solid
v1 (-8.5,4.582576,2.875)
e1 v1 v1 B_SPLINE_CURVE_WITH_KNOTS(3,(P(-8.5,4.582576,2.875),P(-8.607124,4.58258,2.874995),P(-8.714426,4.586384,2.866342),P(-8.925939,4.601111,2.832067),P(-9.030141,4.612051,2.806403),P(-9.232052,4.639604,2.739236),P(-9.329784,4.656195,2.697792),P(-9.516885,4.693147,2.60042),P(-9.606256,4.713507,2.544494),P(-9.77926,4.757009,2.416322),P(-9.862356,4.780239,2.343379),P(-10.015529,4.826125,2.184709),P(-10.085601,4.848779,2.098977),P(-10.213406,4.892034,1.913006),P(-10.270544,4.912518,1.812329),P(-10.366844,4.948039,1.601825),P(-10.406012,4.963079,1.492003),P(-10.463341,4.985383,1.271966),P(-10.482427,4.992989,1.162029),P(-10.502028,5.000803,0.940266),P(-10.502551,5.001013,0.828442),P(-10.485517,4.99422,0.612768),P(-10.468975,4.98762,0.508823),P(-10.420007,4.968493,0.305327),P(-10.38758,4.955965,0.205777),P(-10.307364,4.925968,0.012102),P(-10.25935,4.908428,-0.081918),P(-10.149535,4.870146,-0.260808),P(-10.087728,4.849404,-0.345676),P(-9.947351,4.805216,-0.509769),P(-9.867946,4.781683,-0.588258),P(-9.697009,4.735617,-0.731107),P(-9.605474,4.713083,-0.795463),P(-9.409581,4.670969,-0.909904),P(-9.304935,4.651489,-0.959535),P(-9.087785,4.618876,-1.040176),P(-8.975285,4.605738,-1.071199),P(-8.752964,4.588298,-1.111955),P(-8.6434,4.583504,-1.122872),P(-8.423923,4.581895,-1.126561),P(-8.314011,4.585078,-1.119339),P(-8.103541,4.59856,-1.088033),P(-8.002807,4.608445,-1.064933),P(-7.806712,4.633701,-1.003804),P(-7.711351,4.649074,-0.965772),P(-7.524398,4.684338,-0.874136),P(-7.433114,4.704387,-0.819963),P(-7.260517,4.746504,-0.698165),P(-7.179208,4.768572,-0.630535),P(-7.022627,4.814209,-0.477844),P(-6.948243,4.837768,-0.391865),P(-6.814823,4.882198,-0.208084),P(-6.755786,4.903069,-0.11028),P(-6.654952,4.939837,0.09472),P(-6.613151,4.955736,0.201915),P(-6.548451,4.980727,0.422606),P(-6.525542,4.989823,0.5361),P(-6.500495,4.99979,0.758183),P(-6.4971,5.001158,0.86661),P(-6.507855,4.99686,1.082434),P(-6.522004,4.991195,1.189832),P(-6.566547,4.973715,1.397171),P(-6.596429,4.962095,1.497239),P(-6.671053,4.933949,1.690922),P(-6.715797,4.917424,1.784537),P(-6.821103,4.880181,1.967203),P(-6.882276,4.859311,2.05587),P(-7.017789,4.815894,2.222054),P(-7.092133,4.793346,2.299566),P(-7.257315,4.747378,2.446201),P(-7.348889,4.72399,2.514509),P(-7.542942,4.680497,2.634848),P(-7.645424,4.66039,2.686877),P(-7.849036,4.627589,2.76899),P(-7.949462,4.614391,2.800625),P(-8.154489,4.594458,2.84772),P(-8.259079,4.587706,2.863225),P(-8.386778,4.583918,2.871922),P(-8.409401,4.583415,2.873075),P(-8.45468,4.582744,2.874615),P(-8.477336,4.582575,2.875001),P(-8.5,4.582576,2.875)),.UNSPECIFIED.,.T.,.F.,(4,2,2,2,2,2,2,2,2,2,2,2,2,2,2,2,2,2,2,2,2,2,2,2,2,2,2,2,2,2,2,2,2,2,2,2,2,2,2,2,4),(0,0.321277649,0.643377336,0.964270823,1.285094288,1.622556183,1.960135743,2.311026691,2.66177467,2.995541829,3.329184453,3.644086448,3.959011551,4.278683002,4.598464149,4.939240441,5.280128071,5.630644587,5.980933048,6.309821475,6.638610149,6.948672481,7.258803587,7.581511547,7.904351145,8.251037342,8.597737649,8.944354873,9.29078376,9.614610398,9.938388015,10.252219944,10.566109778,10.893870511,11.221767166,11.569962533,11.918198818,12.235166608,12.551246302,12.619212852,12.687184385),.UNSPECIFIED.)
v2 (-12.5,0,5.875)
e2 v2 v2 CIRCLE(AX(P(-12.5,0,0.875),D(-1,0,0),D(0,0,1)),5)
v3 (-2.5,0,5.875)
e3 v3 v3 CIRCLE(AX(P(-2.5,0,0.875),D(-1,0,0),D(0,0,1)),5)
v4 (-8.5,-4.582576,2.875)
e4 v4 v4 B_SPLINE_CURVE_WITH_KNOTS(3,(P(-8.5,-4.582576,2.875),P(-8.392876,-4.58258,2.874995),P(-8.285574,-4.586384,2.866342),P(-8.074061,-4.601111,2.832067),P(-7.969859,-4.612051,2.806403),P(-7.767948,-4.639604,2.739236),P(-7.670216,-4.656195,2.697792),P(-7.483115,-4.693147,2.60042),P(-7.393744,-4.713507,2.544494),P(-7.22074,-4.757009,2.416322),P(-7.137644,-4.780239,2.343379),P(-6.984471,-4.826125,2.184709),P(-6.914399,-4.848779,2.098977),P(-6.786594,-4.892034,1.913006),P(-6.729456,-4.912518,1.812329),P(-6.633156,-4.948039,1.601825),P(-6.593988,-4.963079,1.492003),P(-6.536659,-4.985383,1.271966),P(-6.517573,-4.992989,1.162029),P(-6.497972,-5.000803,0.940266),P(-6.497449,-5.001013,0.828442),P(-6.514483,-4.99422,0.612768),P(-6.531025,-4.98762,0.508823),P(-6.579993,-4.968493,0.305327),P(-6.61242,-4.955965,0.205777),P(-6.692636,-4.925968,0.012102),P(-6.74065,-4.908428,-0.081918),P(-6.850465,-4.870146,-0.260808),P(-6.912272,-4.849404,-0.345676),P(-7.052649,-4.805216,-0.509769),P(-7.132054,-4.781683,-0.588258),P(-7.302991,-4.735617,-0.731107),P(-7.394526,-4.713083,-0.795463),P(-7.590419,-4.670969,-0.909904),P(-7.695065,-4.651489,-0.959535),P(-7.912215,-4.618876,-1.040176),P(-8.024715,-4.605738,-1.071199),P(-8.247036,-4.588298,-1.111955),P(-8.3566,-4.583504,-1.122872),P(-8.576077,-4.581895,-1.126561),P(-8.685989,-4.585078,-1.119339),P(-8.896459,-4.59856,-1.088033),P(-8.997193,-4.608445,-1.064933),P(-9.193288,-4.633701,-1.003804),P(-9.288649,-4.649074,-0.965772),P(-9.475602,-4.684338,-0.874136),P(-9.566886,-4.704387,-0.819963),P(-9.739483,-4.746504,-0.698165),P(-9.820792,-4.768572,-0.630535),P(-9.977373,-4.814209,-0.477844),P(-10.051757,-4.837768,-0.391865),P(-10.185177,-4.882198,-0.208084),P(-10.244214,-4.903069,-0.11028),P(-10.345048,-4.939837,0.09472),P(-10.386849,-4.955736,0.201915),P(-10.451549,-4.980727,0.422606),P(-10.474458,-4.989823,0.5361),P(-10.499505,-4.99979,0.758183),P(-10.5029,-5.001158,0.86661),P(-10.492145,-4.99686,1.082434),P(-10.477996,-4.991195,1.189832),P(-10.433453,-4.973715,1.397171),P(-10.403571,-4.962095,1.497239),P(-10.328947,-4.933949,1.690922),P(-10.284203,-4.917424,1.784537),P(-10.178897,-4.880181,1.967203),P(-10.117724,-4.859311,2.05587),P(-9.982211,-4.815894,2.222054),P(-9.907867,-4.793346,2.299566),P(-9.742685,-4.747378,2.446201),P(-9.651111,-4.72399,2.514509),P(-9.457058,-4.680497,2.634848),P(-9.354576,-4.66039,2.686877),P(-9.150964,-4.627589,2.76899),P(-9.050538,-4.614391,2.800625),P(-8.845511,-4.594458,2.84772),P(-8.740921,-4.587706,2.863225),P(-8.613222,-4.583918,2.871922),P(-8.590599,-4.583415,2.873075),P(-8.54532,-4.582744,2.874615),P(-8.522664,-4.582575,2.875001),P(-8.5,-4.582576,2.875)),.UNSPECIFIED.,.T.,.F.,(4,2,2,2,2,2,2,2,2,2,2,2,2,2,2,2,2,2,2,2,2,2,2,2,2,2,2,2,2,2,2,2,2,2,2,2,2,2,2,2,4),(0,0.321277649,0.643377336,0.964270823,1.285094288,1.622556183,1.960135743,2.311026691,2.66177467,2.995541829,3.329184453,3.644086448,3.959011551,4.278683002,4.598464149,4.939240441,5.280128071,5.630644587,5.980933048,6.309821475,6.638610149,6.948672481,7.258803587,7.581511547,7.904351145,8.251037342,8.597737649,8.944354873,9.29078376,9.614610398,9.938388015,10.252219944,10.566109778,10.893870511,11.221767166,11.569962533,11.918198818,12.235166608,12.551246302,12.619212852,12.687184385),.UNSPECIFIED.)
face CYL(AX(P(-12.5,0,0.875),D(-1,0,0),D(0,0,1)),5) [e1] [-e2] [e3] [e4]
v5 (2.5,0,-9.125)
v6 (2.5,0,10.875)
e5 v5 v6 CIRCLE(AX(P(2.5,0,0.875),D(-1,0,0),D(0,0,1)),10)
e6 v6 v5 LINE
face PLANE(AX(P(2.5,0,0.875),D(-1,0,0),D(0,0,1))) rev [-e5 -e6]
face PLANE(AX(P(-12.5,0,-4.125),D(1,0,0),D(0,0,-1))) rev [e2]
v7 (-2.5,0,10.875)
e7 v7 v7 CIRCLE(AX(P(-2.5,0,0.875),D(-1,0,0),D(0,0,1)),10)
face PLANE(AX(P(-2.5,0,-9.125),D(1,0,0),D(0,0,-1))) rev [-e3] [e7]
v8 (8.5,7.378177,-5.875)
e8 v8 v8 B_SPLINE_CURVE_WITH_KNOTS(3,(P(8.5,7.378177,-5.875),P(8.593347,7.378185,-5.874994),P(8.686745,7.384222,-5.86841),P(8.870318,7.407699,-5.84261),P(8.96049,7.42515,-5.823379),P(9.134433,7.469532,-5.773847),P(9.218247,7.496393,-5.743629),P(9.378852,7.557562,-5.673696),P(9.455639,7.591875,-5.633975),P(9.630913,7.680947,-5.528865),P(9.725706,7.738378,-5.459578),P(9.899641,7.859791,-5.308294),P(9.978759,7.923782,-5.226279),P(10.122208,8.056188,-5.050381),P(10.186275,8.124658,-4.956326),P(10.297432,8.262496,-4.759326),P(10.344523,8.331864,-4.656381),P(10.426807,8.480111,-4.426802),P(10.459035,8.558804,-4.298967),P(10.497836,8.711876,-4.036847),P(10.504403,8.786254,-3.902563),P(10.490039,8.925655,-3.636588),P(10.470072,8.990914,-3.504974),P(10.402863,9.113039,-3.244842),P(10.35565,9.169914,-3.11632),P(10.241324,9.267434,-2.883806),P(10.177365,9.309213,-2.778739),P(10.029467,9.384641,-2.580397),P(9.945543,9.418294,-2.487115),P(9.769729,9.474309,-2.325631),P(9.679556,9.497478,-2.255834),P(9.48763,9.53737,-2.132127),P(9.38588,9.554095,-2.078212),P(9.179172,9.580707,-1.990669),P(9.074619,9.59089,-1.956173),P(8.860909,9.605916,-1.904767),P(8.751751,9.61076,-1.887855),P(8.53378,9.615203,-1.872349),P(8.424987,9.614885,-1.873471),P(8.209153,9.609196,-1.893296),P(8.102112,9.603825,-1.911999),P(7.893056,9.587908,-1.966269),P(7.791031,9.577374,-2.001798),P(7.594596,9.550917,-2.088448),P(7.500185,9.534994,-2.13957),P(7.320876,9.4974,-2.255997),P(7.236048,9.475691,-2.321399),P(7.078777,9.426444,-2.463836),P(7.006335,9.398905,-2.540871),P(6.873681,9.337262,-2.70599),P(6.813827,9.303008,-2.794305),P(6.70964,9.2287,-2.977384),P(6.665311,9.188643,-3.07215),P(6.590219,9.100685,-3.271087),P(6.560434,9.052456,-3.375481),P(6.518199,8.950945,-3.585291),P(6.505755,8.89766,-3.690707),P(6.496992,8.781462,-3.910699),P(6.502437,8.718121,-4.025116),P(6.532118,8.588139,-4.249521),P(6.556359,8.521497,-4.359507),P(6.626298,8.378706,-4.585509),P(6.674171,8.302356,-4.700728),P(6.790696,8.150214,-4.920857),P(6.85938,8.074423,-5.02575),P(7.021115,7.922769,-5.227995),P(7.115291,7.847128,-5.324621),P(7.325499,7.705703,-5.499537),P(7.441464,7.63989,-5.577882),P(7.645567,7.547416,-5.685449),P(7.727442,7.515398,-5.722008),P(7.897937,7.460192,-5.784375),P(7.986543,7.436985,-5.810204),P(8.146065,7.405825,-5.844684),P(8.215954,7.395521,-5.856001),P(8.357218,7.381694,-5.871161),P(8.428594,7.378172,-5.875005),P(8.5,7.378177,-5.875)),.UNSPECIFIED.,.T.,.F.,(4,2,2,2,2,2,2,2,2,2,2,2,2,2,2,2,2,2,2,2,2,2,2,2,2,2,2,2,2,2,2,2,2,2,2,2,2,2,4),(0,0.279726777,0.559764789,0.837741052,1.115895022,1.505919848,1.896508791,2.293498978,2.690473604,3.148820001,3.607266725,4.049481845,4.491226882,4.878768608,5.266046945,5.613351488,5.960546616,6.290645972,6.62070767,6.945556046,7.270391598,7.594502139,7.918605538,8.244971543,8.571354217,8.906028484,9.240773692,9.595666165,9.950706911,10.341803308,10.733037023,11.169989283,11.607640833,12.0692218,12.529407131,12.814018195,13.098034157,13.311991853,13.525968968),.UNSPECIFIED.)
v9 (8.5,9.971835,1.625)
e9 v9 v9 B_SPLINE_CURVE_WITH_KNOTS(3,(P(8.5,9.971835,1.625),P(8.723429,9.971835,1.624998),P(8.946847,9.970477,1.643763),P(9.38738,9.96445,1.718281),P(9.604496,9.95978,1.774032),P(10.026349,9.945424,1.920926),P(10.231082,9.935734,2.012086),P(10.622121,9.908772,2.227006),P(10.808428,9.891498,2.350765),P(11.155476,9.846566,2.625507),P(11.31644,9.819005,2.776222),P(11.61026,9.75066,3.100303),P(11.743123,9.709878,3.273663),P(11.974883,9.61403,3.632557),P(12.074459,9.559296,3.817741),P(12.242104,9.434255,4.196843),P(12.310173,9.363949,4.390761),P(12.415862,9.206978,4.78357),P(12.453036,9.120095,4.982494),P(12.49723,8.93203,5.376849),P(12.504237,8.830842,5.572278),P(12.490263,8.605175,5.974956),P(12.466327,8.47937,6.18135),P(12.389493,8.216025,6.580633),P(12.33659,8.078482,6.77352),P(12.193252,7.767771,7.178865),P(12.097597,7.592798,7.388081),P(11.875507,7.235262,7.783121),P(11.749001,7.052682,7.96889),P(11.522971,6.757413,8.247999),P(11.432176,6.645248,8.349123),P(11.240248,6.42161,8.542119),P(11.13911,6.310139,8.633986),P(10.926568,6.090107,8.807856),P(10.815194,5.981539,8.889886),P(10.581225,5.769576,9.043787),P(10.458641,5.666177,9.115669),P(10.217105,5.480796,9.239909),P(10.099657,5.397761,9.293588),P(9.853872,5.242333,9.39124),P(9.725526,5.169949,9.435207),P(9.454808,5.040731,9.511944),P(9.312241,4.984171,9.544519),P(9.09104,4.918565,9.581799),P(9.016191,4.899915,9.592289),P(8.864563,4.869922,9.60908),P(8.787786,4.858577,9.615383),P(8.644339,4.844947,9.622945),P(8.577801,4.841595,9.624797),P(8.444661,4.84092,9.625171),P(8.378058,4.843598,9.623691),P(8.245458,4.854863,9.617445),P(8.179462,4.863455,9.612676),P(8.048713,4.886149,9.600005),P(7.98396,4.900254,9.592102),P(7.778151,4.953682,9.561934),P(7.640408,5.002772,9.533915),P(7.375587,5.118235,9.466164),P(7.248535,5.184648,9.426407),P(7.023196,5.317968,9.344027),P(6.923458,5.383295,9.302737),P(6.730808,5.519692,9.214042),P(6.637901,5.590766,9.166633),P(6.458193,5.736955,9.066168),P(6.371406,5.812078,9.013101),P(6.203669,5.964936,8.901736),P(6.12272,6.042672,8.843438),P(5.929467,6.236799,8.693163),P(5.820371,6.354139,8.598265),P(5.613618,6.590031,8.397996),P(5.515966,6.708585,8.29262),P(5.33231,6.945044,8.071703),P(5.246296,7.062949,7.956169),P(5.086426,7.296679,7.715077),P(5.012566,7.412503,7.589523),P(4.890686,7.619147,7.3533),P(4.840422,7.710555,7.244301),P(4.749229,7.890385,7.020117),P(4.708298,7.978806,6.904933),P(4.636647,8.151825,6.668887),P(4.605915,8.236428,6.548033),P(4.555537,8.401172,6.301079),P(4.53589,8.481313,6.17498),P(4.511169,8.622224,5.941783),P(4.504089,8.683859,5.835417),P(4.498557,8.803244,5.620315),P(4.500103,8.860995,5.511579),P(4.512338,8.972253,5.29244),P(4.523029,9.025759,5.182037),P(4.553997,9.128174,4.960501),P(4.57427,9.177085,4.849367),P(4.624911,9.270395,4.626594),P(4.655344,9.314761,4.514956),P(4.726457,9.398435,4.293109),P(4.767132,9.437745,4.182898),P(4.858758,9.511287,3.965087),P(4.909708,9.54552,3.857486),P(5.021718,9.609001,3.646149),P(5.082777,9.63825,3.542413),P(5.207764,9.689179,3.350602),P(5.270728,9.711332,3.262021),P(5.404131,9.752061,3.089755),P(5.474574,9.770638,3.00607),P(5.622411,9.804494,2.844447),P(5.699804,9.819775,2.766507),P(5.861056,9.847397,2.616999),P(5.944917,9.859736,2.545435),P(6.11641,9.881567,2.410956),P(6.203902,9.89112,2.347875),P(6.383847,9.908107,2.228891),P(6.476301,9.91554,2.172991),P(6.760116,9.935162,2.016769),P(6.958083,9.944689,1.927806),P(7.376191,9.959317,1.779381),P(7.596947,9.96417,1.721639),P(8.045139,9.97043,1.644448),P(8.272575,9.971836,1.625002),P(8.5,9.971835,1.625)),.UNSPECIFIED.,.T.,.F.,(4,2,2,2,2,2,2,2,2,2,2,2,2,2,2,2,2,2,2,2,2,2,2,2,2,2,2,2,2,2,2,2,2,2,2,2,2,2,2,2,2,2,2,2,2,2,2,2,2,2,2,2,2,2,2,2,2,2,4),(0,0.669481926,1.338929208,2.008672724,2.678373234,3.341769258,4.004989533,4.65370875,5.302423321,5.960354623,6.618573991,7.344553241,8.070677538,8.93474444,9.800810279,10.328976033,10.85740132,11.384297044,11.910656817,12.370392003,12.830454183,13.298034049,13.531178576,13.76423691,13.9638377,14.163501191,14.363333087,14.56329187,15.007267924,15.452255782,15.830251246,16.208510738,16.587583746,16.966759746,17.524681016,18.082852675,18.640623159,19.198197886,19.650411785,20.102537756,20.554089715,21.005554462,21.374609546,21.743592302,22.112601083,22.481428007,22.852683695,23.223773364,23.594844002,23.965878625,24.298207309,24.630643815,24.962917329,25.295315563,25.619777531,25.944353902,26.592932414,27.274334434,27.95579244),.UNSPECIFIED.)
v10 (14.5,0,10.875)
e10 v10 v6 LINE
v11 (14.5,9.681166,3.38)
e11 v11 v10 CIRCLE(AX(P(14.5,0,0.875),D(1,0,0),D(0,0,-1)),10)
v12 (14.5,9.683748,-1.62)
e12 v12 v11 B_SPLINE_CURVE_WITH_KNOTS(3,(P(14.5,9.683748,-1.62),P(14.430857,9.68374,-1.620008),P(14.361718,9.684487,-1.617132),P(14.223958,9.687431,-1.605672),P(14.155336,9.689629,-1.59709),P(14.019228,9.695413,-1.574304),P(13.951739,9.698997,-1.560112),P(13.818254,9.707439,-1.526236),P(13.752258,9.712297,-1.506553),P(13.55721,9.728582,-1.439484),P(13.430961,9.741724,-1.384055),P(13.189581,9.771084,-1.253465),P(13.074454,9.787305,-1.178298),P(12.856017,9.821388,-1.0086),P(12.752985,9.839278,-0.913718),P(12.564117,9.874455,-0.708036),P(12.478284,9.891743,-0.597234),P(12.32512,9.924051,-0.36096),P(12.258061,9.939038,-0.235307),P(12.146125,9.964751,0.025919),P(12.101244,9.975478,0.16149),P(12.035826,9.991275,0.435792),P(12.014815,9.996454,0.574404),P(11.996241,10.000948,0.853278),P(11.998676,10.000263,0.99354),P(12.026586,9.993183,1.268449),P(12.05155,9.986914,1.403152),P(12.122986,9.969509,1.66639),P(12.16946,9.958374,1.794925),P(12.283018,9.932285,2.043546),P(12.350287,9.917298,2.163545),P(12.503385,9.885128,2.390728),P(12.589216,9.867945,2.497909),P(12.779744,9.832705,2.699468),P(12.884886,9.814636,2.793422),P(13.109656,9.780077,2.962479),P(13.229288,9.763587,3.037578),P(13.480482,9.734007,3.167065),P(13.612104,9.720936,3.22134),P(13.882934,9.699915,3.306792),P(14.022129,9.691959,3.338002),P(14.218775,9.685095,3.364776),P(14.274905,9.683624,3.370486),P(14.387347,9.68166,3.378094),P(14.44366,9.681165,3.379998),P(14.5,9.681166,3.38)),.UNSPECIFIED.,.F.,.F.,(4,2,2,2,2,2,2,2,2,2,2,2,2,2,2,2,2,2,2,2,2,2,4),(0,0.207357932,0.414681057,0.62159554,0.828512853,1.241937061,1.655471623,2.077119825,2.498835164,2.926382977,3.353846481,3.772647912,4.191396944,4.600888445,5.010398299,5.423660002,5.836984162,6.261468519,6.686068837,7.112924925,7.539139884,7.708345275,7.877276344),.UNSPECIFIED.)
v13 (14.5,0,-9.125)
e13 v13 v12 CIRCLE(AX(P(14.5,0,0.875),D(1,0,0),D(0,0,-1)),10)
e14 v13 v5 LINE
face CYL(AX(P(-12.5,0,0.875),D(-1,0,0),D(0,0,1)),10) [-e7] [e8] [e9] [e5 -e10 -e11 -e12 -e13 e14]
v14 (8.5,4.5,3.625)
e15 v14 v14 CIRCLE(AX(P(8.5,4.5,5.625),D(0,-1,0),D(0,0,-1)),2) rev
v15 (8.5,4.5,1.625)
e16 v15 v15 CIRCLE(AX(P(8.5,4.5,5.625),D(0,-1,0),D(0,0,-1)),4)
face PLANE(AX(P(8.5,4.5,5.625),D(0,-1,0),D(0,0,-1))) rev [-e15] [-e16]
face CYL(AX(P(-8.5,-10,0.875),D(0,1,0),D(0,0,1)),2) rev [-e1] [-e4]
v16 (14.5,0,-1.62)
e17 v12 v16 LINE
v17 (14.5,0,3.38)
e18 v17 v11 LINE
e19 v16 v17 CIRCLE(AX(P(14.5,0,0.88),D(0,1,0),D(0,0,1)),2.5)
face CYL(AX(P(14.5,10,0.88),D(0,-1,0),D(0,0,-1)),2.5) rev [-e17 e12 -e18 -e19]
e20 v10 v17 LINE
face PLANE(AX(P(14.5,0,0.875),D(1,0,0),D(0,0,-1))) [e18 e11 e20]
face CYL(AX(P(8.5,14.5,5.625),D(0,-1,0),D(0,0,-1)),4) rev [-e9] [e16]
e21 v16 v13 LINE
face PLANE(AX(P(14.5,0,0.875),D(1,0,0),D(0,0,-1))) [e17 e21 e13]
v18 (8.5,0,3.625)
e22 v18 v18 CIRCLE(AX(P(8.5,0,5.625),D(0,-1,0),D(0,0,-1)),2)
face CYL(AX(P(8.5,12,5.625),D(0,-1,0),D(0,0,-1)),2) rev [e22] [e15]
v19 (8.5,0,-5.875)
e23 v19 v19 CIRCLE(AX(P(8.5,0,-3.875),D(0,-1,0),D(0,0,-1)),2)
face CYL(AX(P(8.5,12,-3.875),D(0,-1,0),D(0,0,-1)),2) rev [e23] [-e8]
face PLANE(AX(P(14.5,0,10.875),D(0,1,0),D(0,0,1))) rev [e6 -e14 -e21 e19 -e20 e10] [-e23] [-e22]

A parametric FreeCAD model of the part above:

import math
import FreeCAD as App
import Part
import Sketcher
from FreeCAD import Vector

doc = App.newDocument("Part")
body = doc.addObject("PartDesign::Body", "Body")

# Sketch on XZ plane
sketch1 = body.newObject("Sketcher::SketchObject", "Sketch")
sketch1.AttachmentSupport = (doc.getObject("XZ_Plane"), [""])
sketch1.MapMode = "FlatFace"
sketch1.addGeometry([
    Part.LineSegment(Vector(2, 1, 0), Vector(2, -9, 0)),  # 0
    Part.LineSegment(Vector(2, -9, 0), Vector(-2, -9, 0)),  # 1
    Part.LineSegment(Vector(-2, -9, 0), Vector(-2, -4, 0)),  # 2
    Part.LineSegment(Vector(-2, -4, 0), Vector(-12, -4, 0)),  # 3
    Part.LineSegment(Vector(-12, -4, 0), Vector(-12, 1, 0)),  # 4
    Part.LineSegment(Vector(-12, 1, 0), Vector(2, 1, 0)),  # 5
], False)
sketch1.addGeometry(Part.LineSegment(Vector(-12, 1, 0), Vector(2, 1, 0)), True)  # axis
sketch1.addConstraint([
    Sketcher.Constraint("Coincident", 0, 2, 1, 1),
    Sketcher.Constraint("Coincident", 1, 2, 2, 1),
    Sketcher.Constraint("Coincident", 2, 2, 3, 1),
    Sketcher.Constraint("Coincident", 3, 2, 4, 1),
    Sketcher.Constraint("Coincident", 4, 2, 5, 1),
    Sketcher.Constraint("Coincident", 5, 2, 0, 1),
    Sketcher.Constraint("Vertical", 0),
    Sketcher.Constraint("Horizontal", 1),
    Sketcher.Constraint("Vertical", 2),
    Sketcher.Constraint("Horizontal", 3),
    Sketcher.Constraint("Vertical", 4),
    Sketcher.Constraint("Horizontal", 5),
    Sketcher.Constraint("Horizontal", 6),
    Sketcher.Constraint("Coincident", 6, 1, 4, 2),
    Sketcher.Constraint("Vertical", 0, 2, 6, 2),
    Sketcher.Constraint("Equal", 3, 0),
    Sketcher.Constraint("Equal", 1, 2),
    Sketcher.Constraint("Equal", 2, 4),
    Sketcher.Constraint("DistanceX", 1, 2, 1, 1, 5.0),
    Sketcher.Constraint("DistanceX", -1, 1, 0, 2, 2.5),
    Sketcher.Constraint("DistanceY", 0, 2, -1, 1, 9.125),
])
revolution = body.newObject("PartDesign::Revolution", "Revolution")
revolution.Profile = sketch1
revolution.ReferenceAxis = (sketch1, ["Axis0"])
revolution.Angle = 360

# Sketch on YZ plane
sketch2 = body.newObject("Sketcher::SketchObject", "Sketch001")
sketch2.AttachmentSupport = (doc.getObject("YZ_Plane"), [""])
sketch2.MapMode = "FlatFace"
sketch2.AttachmentOffset = App.Placement(Vector(0, 0, 2.5), App.Rotation())
sketch2.addGeometry([
    Part.LineSegment(Vector(0, 11, 0), Vector(0, -9, 0)),
    Part.ArcOfCircle(Part.Circle(Vector(0, 1, 0), Vector(0, 0, 1), 10), math.radians(-90), math.radians(90)),
], False)
sketch2.addConstraint([
    Sketcher.Constraint("Coincident", 0, 1, 1, 2),
    Sketcher.Constraint("Coincident", 1, 1, 0, 2),
    Sketcher.Constraint("Vertical", 0),
    Sketcher.Constraint("PointOnObject", 1, 3, -2),
    Sketcher.Constraint("PointOnObject", 0, 1, -2),
    Sketcher.Constraint("Radius", 1, 10.0),
    Sketcher.Constraint("DistanceY", -1, 1, 1, 3, 0.875),
])
pad1 = body.newObject("PartDesign::Pad", "Pad")
pad1.Profile = sketch2
pad1.Length = 12

# Sketch on XZ plane
sketch3 = body.newObject("Sketcher::SketchObject", "Sketch002")
sketch3.AttachmentSupport = (doc.getObject("XZ_Plane"), [""])
sketch3.MapMode = "FlatFace"
sketch3.addGeometry([
    Part.Circle(Vector(8.5, 5.6, 0), Vector(0, 0, 1), 2),
    Part.Circle(Vector(8.5, -3.9, 0), Vector(0, 0, 1), 2),
], False)
sketch3.addConstraint([
    Sketcher.Constraint("Equal", 0, 1),
    Sketcher.Constraint("Vertical", 0, 3, 1, 3),
    Sketcher.Constraint("Diameter", 0, 4.0),
    Sketcher.Constraint("DistanceX", -1, 1, 0, 3, 8.5),
    Sketcher.Constraint("DistanceY", 1, 3, 0, 3, 9.5),
    Sketcher.Constraint("DistanceY", -1, 1, 0, 3, 5.625),
])
pocket1 = body.newObject("PartDesign::Pocket", "Pocket")
pocket1.Profile = sketch3
pocket1.Length = 12

# Sketch on XZ plane
sketch4 = body.newObject("Sketcher::SketchObject", "Sketch003")
sketch4.AttachmentSupport = (doc.getObject("XZ_Plane"), [""])
sketch4.MapMode = "FlatFace"
sketch4.AttachmentOffset = App.Placement(Vector(0, 0, -4.5), App.Rotation())
sketch4.addGeometry(Part.Circle(Vector(8.5, 5.6, 0), Vector(0, 0, 1), 4), False)
sketch4.addConstraint([
    Sketcher.Constraint("Diameter", 0, 8.0),
    Sketcher.Constraint("DistanceX", -1, 1, 0, 3, 8.5),
    Sketcher.Constraint("DistanceY", -1, 1, 0, 3, 5.625),
])
pocket2 = body.newObject("PartDesign::Pocket", "Pocket001")
pocket2.Profile = sketch4
pocket2.Length = 10

# Sketch on XZ plane
sketch5 = body.newObject("Sketcher::SketchObject", "Sketch004")
sketch5.AttachmentSupport = (doc.getObject("XZ_Plane"), [""])
sketch5.MapMode = "FlatFace"
sketch5.addGeometry(Part.Circle(Vector(14.5, 0.9, 0), Vector(0, 0, 1), 2.5), False)
sketch5.addConstraint([
    Sketcher.Constraint("Diameter", 0, 5.0),
    Sketcher.Constraint("DistanceX", -1, 1, 0, 3, 14.5),
    Sketcher.Constraint("DistanceY", -1, 1, 0, 3, 0.88),
])
pocket3 = body.newObject("PartDesign::Pocket", "Pocket002")
pocket3.Profile = sketch5
pocket3.Type = "ThroughAll"

# Sketch on XZ plane
sketch6 = body.newObject("Sketcher::SketchObject", "Sketch005")
sketch6.AttachmentSupport = (doc.getObject("XZ_Plane"), [""])
sketch6.MapMode = "FlatFace"
sketch6.AttachmentOffset = App.Placement(Vector(0, 0, -14.5), App.Rotation())
sketch6.addGeometry(Part.Circle(Vector(-8.5, 0.9, 0), Vector(0, 0, 1), 2), False)
sketch6.addConstraint([
    Sketcher.Constraint("Diameter", 0, 4.0),
    Sketcher.Constraint("DistanceX", 0, 3, -1, 1, 8.5),
    Sketcher.Constraint("DistanceY", -1, 1, 0, 3, 0.875),
])
pocket4 = body.newObject("PartDesign::Pocket", "Pocket003")
pocket4.Profile = sketch6
pocket4.Type = "ThroughAll"
pocket4.Reversed = True

doc.recompute()
